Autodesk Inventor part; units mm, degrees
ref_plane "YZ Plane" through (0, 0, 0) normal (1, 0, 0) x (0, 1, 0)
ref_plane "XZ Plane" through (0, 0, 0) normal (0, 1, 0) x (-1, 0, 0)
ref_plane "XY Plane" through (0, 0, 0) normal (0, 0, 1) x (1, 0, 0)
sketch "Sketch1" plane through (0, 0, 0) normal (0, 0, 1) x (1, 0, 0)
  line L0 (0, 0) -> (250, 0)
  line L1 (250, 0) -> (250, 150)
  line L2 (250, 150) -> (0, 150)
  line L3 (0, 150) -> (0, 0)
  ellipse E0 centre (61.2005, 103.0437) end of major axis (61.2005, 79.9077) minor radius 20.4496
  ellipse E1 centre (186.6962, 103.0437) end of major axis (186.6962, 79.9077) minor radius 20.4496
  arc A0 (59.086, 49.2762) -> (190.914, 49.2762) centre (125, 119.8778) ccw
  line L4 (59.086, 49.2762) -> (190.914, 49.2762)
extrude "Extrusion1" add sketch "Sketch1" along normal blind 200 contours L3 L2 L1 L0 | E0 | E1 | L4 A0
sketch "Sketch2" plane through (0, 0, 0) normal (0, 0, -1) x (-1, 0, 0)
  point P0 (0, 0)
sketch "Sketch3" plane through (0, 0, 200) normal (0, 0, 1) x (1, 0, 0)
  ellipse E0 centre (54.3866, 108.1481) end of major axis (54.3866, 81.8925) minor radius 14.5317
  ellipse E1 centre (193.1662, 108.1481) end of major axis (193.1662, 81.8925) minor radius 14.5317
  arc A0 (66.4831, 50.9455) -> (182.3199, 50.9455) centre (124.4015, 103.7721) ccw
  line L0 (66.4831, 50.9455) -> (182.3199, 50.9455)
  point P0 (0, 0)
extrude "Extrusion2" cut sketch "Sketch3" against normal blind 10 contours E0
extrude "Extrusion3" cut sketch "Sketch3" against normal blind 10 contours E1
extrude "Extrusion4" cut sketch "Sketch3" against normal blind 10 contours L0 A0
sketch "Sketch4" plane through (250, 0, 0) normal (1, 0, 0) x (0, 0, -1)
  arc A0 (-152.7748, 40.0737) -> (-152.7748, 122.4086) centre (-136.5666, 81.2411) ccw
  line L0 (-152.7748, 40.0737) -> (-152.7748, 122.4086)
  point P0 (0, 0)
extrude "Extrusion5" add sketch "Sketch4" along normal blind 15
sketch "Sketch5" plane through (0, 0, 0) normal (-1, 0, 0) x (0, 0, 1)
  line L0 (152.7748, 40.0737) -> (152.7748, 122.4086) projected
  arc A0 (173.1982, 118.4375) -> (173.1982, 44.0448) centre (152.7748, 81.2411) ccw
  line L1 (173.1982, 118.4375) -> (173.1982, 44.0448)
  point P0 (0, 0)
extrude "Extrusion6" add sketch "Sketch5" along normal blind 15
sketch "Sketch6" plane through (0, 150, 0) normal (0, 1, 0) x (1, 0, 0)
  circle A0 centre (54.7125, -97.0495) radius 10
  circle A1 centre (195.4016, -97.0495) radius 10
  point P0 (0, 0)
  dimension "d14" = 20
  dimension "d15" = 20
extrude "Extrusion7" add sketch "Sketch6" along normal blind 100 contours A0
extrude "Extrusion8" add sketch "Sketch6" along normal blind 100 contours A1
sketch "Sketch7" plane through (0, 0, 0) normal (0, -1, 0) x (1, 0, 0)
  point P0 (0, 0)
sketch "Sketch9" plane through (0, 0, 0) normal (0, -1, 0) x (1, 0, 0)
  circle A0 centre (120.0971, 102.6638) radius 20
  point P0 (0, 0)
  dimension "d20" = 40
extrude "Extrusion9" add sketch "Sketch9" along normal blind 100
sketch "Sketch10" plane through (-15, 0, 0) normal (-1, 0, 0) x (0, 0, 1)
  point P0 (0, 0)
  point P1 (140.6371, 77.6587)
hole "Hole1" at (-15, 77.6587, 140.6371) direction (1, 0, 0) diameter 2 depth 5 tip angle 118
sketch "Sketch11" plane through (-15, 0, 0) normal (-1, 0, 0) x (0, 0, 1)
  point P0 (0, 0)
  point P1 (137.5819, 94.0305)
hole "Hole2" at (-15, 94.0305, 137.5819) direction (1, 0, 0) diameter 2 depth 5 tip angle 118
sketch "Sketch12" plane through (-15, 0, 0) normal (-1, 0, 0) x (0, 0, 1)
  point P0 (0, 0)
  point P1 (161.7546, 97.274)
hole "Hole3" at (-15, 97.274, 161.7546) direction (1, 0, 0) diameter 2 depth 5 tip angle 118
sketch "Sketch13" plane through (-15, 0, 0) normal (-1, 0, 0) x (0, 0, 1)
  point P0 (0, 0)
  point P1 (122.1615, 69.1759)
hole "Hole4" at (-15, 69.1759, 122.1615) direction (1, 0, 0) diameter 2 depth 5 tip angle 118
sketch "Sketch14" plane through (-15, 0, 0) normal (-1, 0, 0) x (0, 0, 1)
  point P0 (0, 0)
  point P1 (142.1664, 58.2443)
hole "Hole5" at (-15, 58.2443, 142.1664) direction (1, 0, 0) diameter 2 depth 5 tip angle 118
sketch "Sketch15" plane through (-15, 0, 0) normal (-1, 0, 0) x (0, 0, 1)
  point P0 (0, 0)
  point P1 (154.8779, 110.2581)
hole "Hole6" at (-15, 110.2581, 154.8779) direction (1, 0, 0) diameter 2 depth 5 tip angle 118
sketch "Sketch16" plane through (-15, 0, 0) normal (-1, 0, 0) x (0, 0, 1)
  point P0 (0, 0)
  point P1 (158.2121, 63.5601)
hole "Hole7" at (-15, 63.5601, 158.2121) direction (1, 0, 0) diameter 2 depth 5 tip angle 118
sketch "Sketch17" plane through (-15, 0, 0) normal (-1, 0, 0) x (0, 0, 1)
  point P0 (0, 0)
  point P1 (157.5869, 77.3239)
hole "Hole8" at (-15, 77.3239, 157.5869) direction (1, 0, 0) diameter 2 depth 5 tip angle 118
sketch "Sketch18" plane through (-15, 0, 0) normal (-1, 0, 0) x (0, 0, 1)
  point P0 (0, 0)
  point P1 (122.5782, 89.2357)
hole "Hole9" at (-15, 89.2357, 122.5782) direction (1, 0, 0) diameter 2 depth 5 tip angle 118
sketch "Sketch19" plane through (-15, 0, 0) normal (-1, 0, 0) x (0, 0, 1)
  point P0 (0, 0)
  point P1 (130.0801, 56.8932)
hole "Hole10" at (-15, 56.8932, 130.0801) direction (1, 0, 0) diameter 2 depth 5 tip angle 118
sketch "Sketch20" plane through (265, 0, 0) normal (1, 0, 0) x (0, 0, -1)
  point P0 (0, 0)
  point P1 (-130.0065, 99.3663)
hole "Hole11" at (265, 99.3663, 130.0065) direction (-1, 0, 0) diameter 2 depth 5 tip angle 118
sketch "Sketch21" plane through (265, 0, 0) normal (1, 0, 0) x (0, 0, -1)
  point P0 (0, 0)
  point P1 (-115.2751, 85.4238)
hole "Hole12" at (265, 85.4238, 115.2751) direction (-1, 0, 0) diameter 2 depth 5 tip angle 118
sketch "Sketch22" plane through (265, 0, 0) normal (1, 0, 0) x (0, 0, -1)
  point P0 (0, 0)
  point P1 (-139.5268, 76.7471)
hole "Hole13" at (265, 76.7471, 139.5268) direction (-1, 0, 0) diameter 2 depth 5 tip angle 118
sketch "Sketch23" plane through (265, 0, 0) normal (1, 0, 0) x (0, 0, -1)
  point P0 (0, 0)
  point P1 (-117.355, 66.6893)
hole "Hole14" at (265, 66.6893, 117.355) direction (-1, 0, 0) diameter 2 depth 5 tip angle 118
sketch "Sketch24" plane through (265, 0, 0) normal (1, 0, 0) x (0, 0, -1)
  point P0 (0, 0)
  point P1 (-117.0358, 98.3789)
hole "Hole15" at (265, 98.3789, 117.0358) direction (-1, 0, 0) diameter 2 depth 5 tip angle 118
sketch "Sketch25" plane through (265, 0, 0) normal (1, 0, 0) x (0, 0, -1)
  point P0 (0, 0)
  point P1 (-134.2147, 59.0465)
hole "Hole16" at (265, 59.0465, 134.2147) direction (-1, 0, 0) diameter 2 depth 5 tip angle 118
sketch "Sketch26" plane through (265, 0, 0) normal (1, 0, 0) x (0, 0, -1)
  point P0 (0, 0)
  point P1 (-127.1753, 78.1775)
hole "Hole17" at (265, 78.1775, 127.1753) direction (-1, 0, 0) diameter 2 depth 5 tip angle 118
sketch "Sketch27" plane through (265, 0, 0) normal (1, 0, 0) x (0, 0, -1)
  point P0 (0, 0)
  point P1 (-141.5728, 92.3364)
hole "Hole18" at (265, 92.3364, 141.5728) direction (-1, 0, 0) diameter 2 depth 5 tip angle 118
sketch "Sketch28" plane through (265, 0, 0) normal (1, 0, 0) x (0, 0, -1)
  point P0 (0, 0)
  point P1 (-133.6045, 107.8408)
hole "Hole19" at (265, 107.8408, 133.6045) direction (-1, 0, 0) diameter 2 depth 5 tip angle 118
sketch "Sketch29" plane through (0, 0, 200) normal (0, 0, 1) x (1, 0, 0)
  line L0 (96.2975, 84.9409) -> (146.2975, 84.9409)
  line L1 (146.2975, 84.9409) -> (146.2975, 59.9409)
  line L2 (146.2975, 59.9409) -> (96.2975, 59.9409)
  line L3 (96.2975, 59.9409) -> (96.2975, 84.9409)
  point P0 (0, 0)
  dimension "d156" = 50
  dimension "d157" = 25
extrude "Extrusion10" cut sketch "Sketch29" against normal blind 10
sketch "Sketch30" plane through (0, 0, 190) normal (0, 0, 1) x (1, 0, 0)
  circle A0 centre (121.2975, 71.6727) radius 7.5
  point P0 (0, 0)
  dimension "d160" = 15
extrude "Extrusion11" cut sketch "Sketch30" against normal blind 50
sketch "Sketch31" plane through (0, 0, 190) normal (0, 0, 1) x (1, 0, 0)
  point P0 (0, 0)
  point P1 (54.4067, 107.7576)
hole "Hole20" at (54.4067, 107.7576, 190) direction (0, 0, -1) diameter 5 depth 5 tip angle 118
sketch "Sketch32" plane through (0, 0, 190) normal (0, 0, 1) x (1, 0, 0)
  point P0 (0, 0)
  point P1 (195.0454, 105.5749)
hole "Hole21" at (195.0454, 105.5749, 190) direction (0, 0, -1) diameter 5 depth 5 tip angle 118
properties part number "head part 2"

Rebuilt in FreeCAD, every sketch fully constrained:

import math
import FreeCAD as App
import Part
import Sketcher
Q = App.Units.Quantity

doc = App.newDocument("Part")
body = doc.addObject("PartDesign::Body", "Body")

# Sketch on XY plane
sketch1 = body.newObject("Sketcher::SketchObject", "Sketch")
sketch1.AttachmentSupport = (doc.getObject("XY_Plane"), [""])
sketch1.MapMode = "FlatFace"
sketch1.addGeometry([
    Part.LineSegment(App.Vector(0, 150, 0), App.Vector(0, 0, 0)),
    Part.LineSegment(App.Vector(0, 0, 0), App.Vector(250, 0, 0)),
    Part.LineSegment(App.Vector(250, 0, 0), App.Vector(250, 150, 0)),
    Part.LineSegment(App.Vector(250, 150, 0), App.Vector(0, 150, 0)),
], False)
sketch1.addConstraint([
    Sketcher.Constraint("Coincident", 0, 2, 1, 1),
    Sketcher.Constraint("Coincident", 1, 2, 2, 1),
    Sketcher.Constraint("Coincident", 2, 2, 3, 1),
    Sketcher.Constraint("Coincident", 3, 2, 0, 1),
    Sketcher.Constraint("Vertical", 0),
    Sketcher.Constraint("Horizontal", 1),
    Sketcher.Constraint("Vertical", 2),
    Sketcher.Constraint("Horizontal", 3),
    Sketcher.Constraint("Coincident", 0, 2, -1, 1),
    Sketcher.Constraint("DistanceX", 1, 1, 1, 2, Q("250 mm")),
    Sketcher.Constraint("DistanceY", 0, 2, 0, 1, Q("150 mm")),
])
pad1 = body.newObject("PartDesign::Pad", "Pad")
pad1.Profile = sketch1
pad1.Length = 200

# Sketch on XY plane
sketch2 = body.newObject("Sketcher::SketchObject", "Sketch001")
sketch2.AttachmentSupport = (doc.getObject("XY_Plane"), [""])
sketch2.MapMode = "FlatFace"
sketch2.AttachmentOffset = App.Placement(App.Vector(0, 0, 200), App.Rotation())
sketch2.addGeometry(Part.Ellipse(App.Vector(54.3866, 81.8925, 0), App.Vector(68.9183, 108.1481, 0), App.Vector(54.3866, 108.1481, 0)), False)
sketch2.addConstraint(Sketcher.Constraint("Block", 0))
pocket1 = body.newObject("PartDesign::Pocket", "Pocket")
pocket1.Profile = sketch2
pocket1.Length = 10

# Sketch on XY plane
sketch3 = body.newObject("Sketcher::SketchObject", "Sketch002")
sketch3.AttachmentSupport = (doc.getObject("XY_Plane"), [""])
sketch3.MapMode = "FlatFace"
sketch3.AttachmentOffset = App.Placement(App.Vector(0, 0, 200), App.Rotation())
sketch3.addGeometry(Part.Ellipse(App.Vector(193.1662, 81.8925, 0), App.Vector(207.6979, 108.1481, 0), App.Vector(193.1662, 108.1481, 0)), False)
sketch3.addConstraint(Sketcher.Constraint("Block", 0))
pocket2 = body.newObject("PartDesign::Pocket", "Pocket001")
pocket2.Profile = sketch3
pocket2.Length = 10

# Sketch on XY plane
sketch4 = body.newObject("Sketcher::SketchObject", "Sketch003")
sketch4.AttachmentSupport = (doc.getObject("XY_Plane"), [""])
sketch4.MapMode = "FlatFace"
sketch4.AttachmentOffset = App.Placement(App.Vector(0, 0, 200), App.Rotation())
sketch4.addGeometry([
    Part.LineSegment(App.Vector(182, 51, 0), App.Vector(66, 51, 0)),
    Part.ArcOfCircle(Part.Circle(App.Vector(124, 104, 0), App.Vector(0, 0, 1), 78), math.radians(-138), math.radians(-42)),
], False)
sketch4.addConstraint([
    Sketcher.Constraint("Coincident", 0, 1, 1, 2),
    Sketcher.Constraint("Coincident", 1, 1, 0, 2),
    Sketcher.Constraint("Horizontal", 0),
    Sketcher.Constraint("Radius", 1, Q("78.3913 mm")),
    Sketcher.Constraint("DistanceX", -1, 1, 0, 1, Q("182.32 mm")),
    Sketcher.Constraint("DistanceX", 0, 2, 0, 1, Q("115.8368 mm")),
    Sketcher.Constraint("DistanceY", -1, 1, 1, 3, Q("103.772 mm")),
])
pocket3 = body.newObject("PartDesign::Pocket", "Pocket002")
pocket3.Profile = sketch4
pocket3.Length = 10

# Sketch on YZ plane
sketch5 = body.newObject("Sketcher::SketchObject", "Sketch004")
sketch5.AttachmentSupport = (doc.getObject("YZ_Plane"), [""])
sketch5.MapMode = "FlatFace"
sketch5.AttachmentOffset = App.Placement(App.Vector(0, 0, 250), App.Rotation())
sketch5.addGeometry([
    Part.LineSegment(App.Vector(122, 153, 0), App.Vector(40, 153, 0)),
    Part.ArcOfCircle(Part.Circle(App.Vector(81, 137, 0), App.Vector(0, 0, 1), 44), math.radians(159), math.radians(381)),
], False)
sketch5.addConstraint([
    Sketcher.Constraint("Coincident", 0, 1, 1, 2),
    Sketcher.Constraint("Coincident", 1, 1, 0, 2),
    Sketcher.Constraint("Horizontal", 0),
    Sketcher.Constraint("Radius", 1, Q("44.2432 mm")),
    Sketcher.Constraint("DistanceX", 0, 2, 0, 1, Q("82.335 mm")),
    Sketcher.Constraint("DistanceX", -1, 1, 1, 3, Q("81.241 mm")),
    Sketcher.Constraint("DistanceY", -1, 1, 1, 3, Q("136.5666 mm")),
])
pad2 = body.newObject("PartDesign::Pad", "Pad001")
pad2.Profile = sketch5
pad2.Length = 15

# Sketch on YZ plane
sketch6 = body.newObject("Sketcher::SketchObject", "Sketch005")
sketch6.AttachmentSupport = (doc.getObject("YZ_Plane"), [""])
sketch6.MapMode = "FlatFace"
sketch6.addGeometry([
    Part.LineSegment(App.Vector(44, 173, 0), App.Vector(118, 173, 0)),
    Part.ArcOfCircle(Part.Circle(App.Vector(81, 153, 0), App.Vector(0, 0, 1), 42), math.radians(151), math.radians(389)),
], False)
sketch6.addConstraint([
    Sketcher.Constraint("Coincident", 0, 1, 1, 1),
    Sketcher.Constraint("Coincident", 1, 2, 0, 2),
    Sketcher.Constraint("Horizontal", 0),
    Sketcher.Constraint("Radius", 1, Q("42.4345 mm")),
    Sketcher.Constraint("DistanceX", 0, 1, 0, 2, Q("74.3927 mm")),
    Sketcher.Constraint("DistanceX", -1, 1, 1, 3, Q("81.241 mm")),
    Sketcher.Constraint("DistanceY", -1, 1, 1, 3, Q("152.7748 mm")),
])
pad3 = body.newObject("PartDesign::Pad", "Pad002")
pad3.Profile = sketch6
pad3.Length = 15
pad3.Reversed = True

# Sketch on XZ plane
sketch7 = body.newObject("Sketcher::SketchObject", "Sketch006")
sketch7.AttachmentSupport = (doc.getObject("XZ_Plane"), [""])
sketch7.MapMode = "FlatFace"
sketch7.AttachmentOffset = App.Placement(App.Vector(0, 0, -150), App.Rotation())
sketch7.addGeometry(Part.Circle(App.Vector(55, 97, 0), App.Vector(0, 0, 1), 10), False)
sketch7.addConstraint([
    Sketcher.Constraint("Diameter", 0, Q("20 mm")),
    Sketcher.Constraint("DistanceX", -1, 1, 0, 3, Q("54.7125 mm")),
    Sketcher.Constraint("DistanceY", -1, 1, 0, 3, Q("97.0495 mm")),
])
pad4 = body.newObject("PartDesign::Pad", "Pad003")
pad4.Profile = sketch7
pad4.Length = 100
pad4.Reversed = True

# Sketch on XZ plane
sketch8 = body.newObject("Sketcher::SketchObject", "Sketch007")
sketch8.AttachmentSupport = (doc.getObject("XZ_Plane"), [""])
sketch8.MapMode = "FlatFace"
sketch8.AttachmentOffset = App.Placement(App.Vector(0, 0, -150), App.Rotation())
sketch8.addGeometry(Part.Circle(App.Vector(195, 97, 0), App.Vector(0, 0, 1), 10), False)
sketch8.addConstraint([
    Sketcher.Constraint("Diameter", 0, Q("20 mm")),
    Sketcher.Constraint("DistanceX", -1, 1, 0, 3, Q("195.4016 mm")),
    Sketcher.Constraint("DistanceY", -1, 1, 0, 3, Q("97.0495 mm")),
])
pad5 = body.newObject("PartDesign::Pad", "Pad004")
pad5.Profile = sketch8
pad5.Length = 100
pad5.Reversed = True

# Sketch on XZ plane
sketch9 = body.newObject("Sketcher::SketchObject", "Sketch008")
sketch9.AttachmentSupport = (doc.getObject("XZ_Plane"), [""])
sketch9.MapMode = "FlatFace"
sketch9.addGeometry(Part.Circle(App.Vector(120, 103, 0), App.Vector(0, 0, 1), 20), False)
sketch9.addConstraint([
    Sketcher.Constraint("Diameter", 0, Q("40 mm")),
    Sketcher.Constraint("DistanceX", -1, 1, 0, 3, Q("120.097 mm")),
    Sketcher.Constraint("DistanceY", -1, 1, 0, 3, Q("102.6638 mm")),
])
pad6 = body.newObject("PartDesign::Pad", "Pad005")
pad6.Profile = sketch9
pad6.Length = 100

# Sketch on YZ plane
sketch10 = body.newObject("Sketcher::SketchObject", "Sketch009")
sketch10.AttachmentSupport = (doc.getObject("YZ_Plane"), [""])
sketch10.MapMode = "FlatFace"
sketch10.AttachmentOffset = App.Placement(App.Vector(0, 0, -15), App.Rotation())
sketch10.addGeometry(Part.Circle(App.Vector(77.7, 140.6, 0), App.Vector(0, 0, 1), 1), False)
sketch10.addConstraint([
    Sketcher.Constraint("Diameter", 0, Q("2 mm")),
    Sketcher.Constraint("DistanceY", -1, 1, 0, 3, Q("140.637 mm")),
    Sketcher.Constraint("DistanceX", -1, 1, 0, 3, Q("77.6587 mm")),
])
doc.recompute()
hole = body.newObject("PartDesign::Hole", "Hole")
hole.Profile = sketch10
hole.ThreadType = "None"
hole.Diameter = 2
hole.DepthType = "Dimension"
hole.Depth = 5
hole.DrillPoint = "Angled"
hole.DrillPointAngle = 118
hole.Reversed = True

# Sketch on YZ plane
sketch11 = body.newObject("Sketcher::SketchObject", "Sketch010")
sketch11.AttachmentSupport = (doc.getObject("YZ_Plane"), [""])
sketch11.MapMode = "FlatFace"
sketch11.AttachmentOffset = App.Placement(App.Vector(0, 0, -15), App.Rotation())
sketch11.addGeometry(Part.Circle(App.Vector(94, 137.6, 0), App.Vector(0, 0, 1), 1), False)
sketch11.addConstraint([
    Sketcher.Constraint("Diameter", 0, Q("2 mm")),
    Sketcher.Constraint("DistanceY", -1, 1, 0, 3, Q("137.582 mm")),
    Sketcher.Constraint("DistanceX", -1, 1, 0, 3, Q("94.0305 mm")),
])
doc.recompute()
hole2 = body.newObject("PartDesign::Hole", "Hole001")
hole2.Profile = sketch11
hole2.ThreadType = "None"
hole2.Diameter = 2
hole2.DepthType = "Dimension"
hole2.Depth = 5
hole2.DrillPoint = "Angled"
hole2.DrillPointAngle = 118
hole2.Reversed = True

# Sketch on YZ plane
sketch12 = body.newObject("Sketcher::SketchObject", "Sketch011")
sketch12.AttachmentSupport = (doc.getObject("YZ_Plane"), [""])
sketch12.MapMode = "FlatFace"
sketch12.AttachmentOffset = App.Placement(App.Vector(0, 0, -15), App.Rotation())
sketch12.addGeometry(Part.Circle(App.Vector(97.3, 161.8, 0), App.Vector(0, 0, 1), 1), False)
sketch12.addConstraint([
    Sketcher.Constraint("Diameter", 0, Q("2 mm")),
    Sketcher.Constraint("DistanceX", -1, 1, 0, 3, Q("97.274 mm")),
    Sketcher.Constraint("DistanceY", -1, 1, 0, 3, Q("161.7546 mm")),
])
doc.recompute()
hole3 = body.newObject("PartDesign::Hole", "Hole002")
hole3.Profile = sketch12
hole3.ThreadType = "None"
hole3.Diameter = 2
hole3.DepthType = "Dimension"
hole3.Depth = 5
hole3.DrillPoint = "Angled"
hole3.DrillPointAngle = 118
hole3.Reversed = True

# Sketch on YZ plane
sketch13 = body.newObject("Sketcher::SketchObject", "Sketch012")
sketch13.AttachmentSupport = (doc.getObject("YZ_Plane"), [""])
sketch13.MapMode = "FlatFace"
sketch13.AttachmentOffset = App.Placement(App.Vector(0, 0, -15), App.Rotation())
sketch13.addGeometry(Part.Circle(App.Vector(69.2, 122.2, 0), App.Vector(0, 0, 1), 1), False)
sketch13.addConstraint([
    Sketcher.Constraint("Diameter", 0, Q("2 mm")),
    Sketcher.Constraint("DistanceX", -1, 1, 0, 3, Q("69.176 mm")),
    Sketcher.Constraint("DistanceY", -1, 1, 0, 3, Q("122.1615 mm")),
])
doc.recompute()
hole4 = body.newObject("PartDesign::Hole", "Hole003")
hole4.Profile = sketch13
hole4.ThreadType = "None"
hole4.Diameter = 2
hole4.DepthType = "Dimension"
hole4.Depth = 5
hole4.DrillPoint = "Angled"
hole4.DrillPointAngle = 118
hole4.Reversed = True

# Sketch on YZ plane
sketch14 = body.newObject("Sketcher::SketchObject", "Sketch013")
sketch14.AttachmentSupport = (doc.getObject("YZ_Plane"), [""])
sketch14.MapMode = "FlatFace"
sketch14.AttachmentOffset = App.Placement(App.Vector(0, 0, -15), App.Rotation())
sketch14.addGeometry(Part.Circle(App.Vector(58.2, 142.2, 0), App.Vector(0, 0, 1), 1), False)
sketch14.addConstraint([
    Sketcher.Constraint("Diameter", 0, Q("2 mm")),
    Sketcher.Constraint("DistanceX", -1, 1, 0, 3, Q("58.2443 mm")),
    Sketcher.Constraint("DistanceY", -1, 1, 0, 3, Q("142.1664 mm")),
])
doc.recompute()
hole5 = body.newObject("PartDesign::Hole", "Hole004")
hole5.Profile = sketch14
hole5.ThreadType = "None"
hole5.Diameter = 2
hole5.DepthType = "Dimension"
hole5.Depth = 5
hole5.DrillPoint = "Angled"
hole5.DrillPointAngle = 118
hole5.Reversed = True

# Sketch on YZ plane
sketch15 = body.newObject("Sketcher::SketchObject", "Sketch014")
sketch15.AttachmentSupport = (doc.getObject("YZ_Plane"), [""])
sketch15.MapMode = "FlatFace"
sketch15.AttachmentOffset = App.Placement(App.Vector(0, 0, -15), App.Rotation())
sketch15.addGeometry(Part.Circle(App.Vector(110.3, 154.9, 0), App.Vector(0, 0, 1), 1), False)
sketch15.addConstraint([
    Sketcher.Constraint("Diameter", 0, Q("2 mm")),
    Sketcher.Constraint("DistanceX", -1, 1, 0, 3, Q("110.258 mm")),
    Sketcher.Constraint("DistanceY", -1, 1, 0, 3, Q("154.878 mm")),
])
doc.recompute()
hole6 = body.newObject("PartDesign::Hole", "Hole005")
hole6.Profile = sketch15
hole6.ThreadType = "None"
hole6.Diameter = 2
hole6.DepthType = "Dimension"
hole6.Depth = 5
hole6.DrillPoint = "Angled"
hole6.DrillPointAngle = 118
hole6.Reversed = True

# Sketch on YZ plane
sketch16 = body.newObject("Sketcher::SketchObject", "Sketch015")
sketch16.AttachmentSupport = (doc.getObject("YZ_Plane"), [""])
sketch16.MapMode = "FlatFace"
sketch16.AttachmentOffset = App.Placement(App.Vector(0, 0, -15), App.Rotation())
sketch16.addGeometry(Part.Circle(App.Vector(63.6, 158.2, 0), App.Vector(0, 0, 1), 1), False)
sketch16.addConstraint([
    Sketcher.Constraint("Diameter", 0, Q("2 mm")),
    Sketcher.Constraint("DistanceX", -1, 1, 0, 3, Q("63.56 mm")),
    Sketcher.Constraint("DistanceY", -1, 1, 0, 3, Q("158.212 mm")),
])
doc.recompute()
hole7 = body.newObject("PartDesign::Hole", "Hole006")
hole7.Profile = sketch16
hole7.ThreadType = "None"
hole7.Diameter = 2
hole7.DepthType = "Dimension"
hole7.Depth = 5
hole7.DrillPoint = "Angled"
hole7.DrillPointAngle = 118
hole7.Reversed = True

# Sketch on YZ plane
sketch17 = body.newObject("Sketcher::SketchObject", "Sketch016")
sketch17.AttachmentSupport = (doc.getObject("YZ_Plane"), [""])
sketch17.MapMode = "FlatFace"
sketch17.AttachmentOffset = App.Placement(App.Vector(0, 0, -15), App.Rotation())
sketch17.addGeometry(Part.Circle(App.Vector(77.3, 157.6, 0), App.Vector(0, 0, 1), 1), False)
sketch17.addConstraint([
    Sketcher.Constraint("Diameter", 0, Q("2 mm")),
    Sketcher.Constraint("DistanceX", -1, 1, 0, 3, Q("77.324 mm")),
    Sketcher.Constraint("DistanceY", -1, 1, 0, 3, Q("157.587 mm")),
])
doc.recompute()
hole8 = body.newObject("PartDesign::Hole", "Hole007")
hole8.Profile = sketch17
hole8.ThreadType = "None"
hole8.Diameter = 2
hole8.DepthType = "Dimension"
hole8.Depth = 5
hole8.DrillPoint = "Angled"
hole8.DrillPointAngle = 118
hole8.Reversed = True

# Sketch on YZ plane
sketch18 = body.newObject("Sketcher::SketchObject", "Sketch017")
sketch18.AttachmentSupport = (doc.getObject("YZ_Plane"), [""])
sketch18.MapMode = "FlatFace"
sketch18.AttachmentOffset = App.Placement(App.Vector(0, 0, -15), App.Rotation())
sketch18.addGeometry(Part.Circle(App.Vector(89.2, 122.6, 0), App.Vector(0, 0, 1), 1), False)
sketch18.addConstraint([
    Sketcher.Constraint("Diameter", 0, Q("2 mm")),
    Sketcher.Constraint("DistanceX", -1, 1, 0, 3, Q("89.2357 mm")),
    Sketcher.Constraint("DistanceY", -1, 1, 0, 3, Q("122.5782 mm")),
])
doc.recompute()
hole9 = body.newObject("PartDesign::Hole", "Hole008")
hole9.Profile = sketch18
hole9.ThreadType = "None"
hole9.Diameter = 2
hole9.DepthType = "Dimension"
hole9.Depth = 5
hole9.DrillPoint = "Angled"
hole9.DrillPointAngle = 118
hole9.Reversed = True

# Sketch on YZ plane
sketch19 = body.newObject("Sketcher::SketchObject", "Sketch018")
sketch19.AttachmentSupport = (doc.getObject("YZ_Plane"), [""])
sketch19.MapMode = "FlatFace"
sketch19.AttachmentOffset = App.Placement(App.Vector(0, 0, -15), App.Rotation())
sketch19.addGeometry(Part.Circle(App.Vector(56.9, 130.1, 0), App.Vector(0, 0, 1), 1), False)
sketch19.addConstraint([
    Sketcher.Constraint("Diameter", 0, Q("2 mm")),
    Sketcher.Constraint("DistanceY", -1, 1, 0, 3, Q("130.08 mm")),
    Sketcher.Constraint("DistanceX", -1, 1, 0, 3, Q("56.8932 mm")),
])
doc.recompute()
hole10 = body.newObject("PartDesign::Hole", "Hole009")
hole10.Profile = sketch19
hole10.ThreadType = "None"
hole10.Diameter = 2
hole10.DepthType = "Dimension"
hole10.Depth = 5
hole10.DrillPoint = "Angled"
hole10.DrillPointAngle = 118
hole10.Reversed = True

# Sketch on YZ plane
sketch20 = body.newObject("Sketcher::SketchObject", "Sketch019")
sketch20.AttachmentSupport = (doc.getObject("YZ_Plane"), [""])
sketch20.MapMode = "FlatFace"
sketch20.AttachmentOffset = App.Placement(App.Vector(0, 0, 265), App.Rotation())
sketch20.addGeometry(Part.Circle(App.Vector(99.4, 130, 0), App.Vector(0, 0, 1), 1), False)
sketch20.addConstraint([
    Sketcher.Constraint("Diameter", 0, Q("2 mm")),
    Sketcher.Constraint("DistanceX", -1, 1, 0, 3, Q("99.3663 mm")),
    Sketcher.Constraint("DistanceY", -1, 1, 0, 3, Q("130.0065 mm")),
])
doc.recompute()
hole11 = body.newObject("PartDesign::Hole", "Hole010")
hole11.Profile = sketch20
hole11.ThreadType = "None"
hole11.Diameter = 2
hole11.DepthType = "Dimension"
hole11.Depth = 5
hole11.DrillPoint = "Angled"
hole11.DrillPointAngle = 118

# Sketch on YZ plane
sketch21 = body.newObject("Sketcher::SketchObject", "Sketch020")
sketch21.AttachmentSupport = (doc.getObject("YZ_Plane"), [""])
sketch21.MapMode = "FlatFace"
sketch21.AttachmentOffset = App.Placement(App.Vector(0, 0, 265), App.Rotation())
sketch21.addGeometry(Part.Circle(App.Vector(85.4, 115.3, 0), App.Vector(0, 0, 1), 1), False)
sketch21.addConstraint([
    Sketcher.Constraint("Diameter", 0, Q("2 mm")),
    Sketcher.Constraint("DistanceY", -1, 1, 0, 3, Q("115.275 mm")),
    Sketcher.Constraint("DistanceX", -1, 1, 0, 3, Q("85.4238 mm")),
])
doc.recompute()
hole12 = body.newObject("PartDesign::Hole", "Hole011")
hole12.Profile = sketch21
hole12.ThreadType = "None"
hole12.Diameter = 2
hole12.DepthType = "Dimension"
hole12.Depth = 5
hole12.DrillPoint = "Angled"
hole12.DrillPointAngle = 118

# Sketch on YZ plane
sketch22 = body.newObject("Sketcher::SketchObject", "Sketch021")
sketch22.AttachmentSupport = (doc.getObject("YZ_Plane"), [""])
sketch22.MapMode = "FlatFace"
sketch22.AttachmentOffset = App.Placement(App.Vector(0, 0, 265), App.Rotation())
sketch22.addGeometry(Part.Circle(App.Vector(76.7, 139.5, 0), App.Vector(0, 0, 1), 1), False)
sketch22.addConstraint([
    Sketcher.Constraint("Diameter", 0, Q("2 mm")),
    Sketcher.Constraint("DistanceX", -1, 1, 0, 3, Q("76.747 mm")),
    Sketcher.Constraint("DistanceY", -1, 1, 0, 3, Q("139.5268 mm")),
])
doc.recompute()
hole13 = body.newObject("PartDesign::Hole", "Hole012")
hole13.Profile = sketch22
hole13.ThreadType = "None"
hole13.Diameter = 2
hole13.DepthType = "Dimension"
hole13.Depth = 5
hole13.DrillPoint = "Angled"
hole13.DrillPointAngle = 118

# Sketch on YZ plane
sketch23 = body.newObject("Sketcher::SketchObject", "Sketch022")
sketch23.AttachmentSupport = (doc.getObject("YZ_Plane"), [""])
sketch23.MapMode = "FlatFace"
sketch23.AttachmentOffset = App.Placement(App.Vector(0, 0, 265), App.Rotation())
sketch23.addGeometry(Part.Circle(App.Vector(66.7, 117.4, 0), App.Vector(0, 0, 1), 1), False)
sketch23.addConstraint([
    Sketcher.Constraint("Diameter", 0, Q("2 mm")),
    Sketcher.Constraint("DistanceY", -1, 1, 0, 3, Q("117.355 mm")),
    Sketcher.Constraint("DistanceX", -1, 1, 0, 3, Q("66.6893 mm")),
])
doc.recompute()
hole14 = body.newObject("PartDesign::Hole", "Hole013")
hole14.Profile = sketch23
hole14.ThreadType = "None"
hole14.Diameter = 2
hole14.DepthType = "Dimension"
hole14.Depth = 5
hole14.DrillPoint = "Angled"
hole14.DrillPointAngle = 118

# Sketch on YZ plane
sketch24 = body.newObject("Sketcher::SketchObject", "Sketch023")
sketch24.AttachmentSupport = (doc.getObject("YZ_Plane"), [""])
sketch24.MapMode = "FlatFace"
sketch24.AttachmentOffset = App.Placement(App.Vector(0, 0, 265), App.Rotation())
sketch24.addGeometry(Part.Circle(App.Vector(98.4, 117, 0), App.Vector(0, 0, 1), 1), False)
sketch24.addConstraint([
    Sketcher.Constraint("Diameter", 0, Q("2 mm")),
    Sketcher.Constraint("DistanceX", -1, 1, 0, 3, Q("98.379 mm")),
    Sketcher.Constraint("DistanceY", -1, 1, 0, 3, Q("117.0358 mm")),
])
doc.recompute()
hole15 = body.newObject("PartDesign::Hole", "Hole014")
hole15.Profile = sketch24
hole15.ThreadType = "None"
hole15.Diameter = 2
hole15.DepthType = "Dimension"
hole15.Depth = 5
hole15.DrillPoint = "Angled"
hole15.DrillPointAngle = 118

# Sketch on YZ plane
sketch25 = body.newObject("Sketcher::SketchObject", "Sketch024")
sketch25.AttachmentSupport = (doc.getObject("YZ_Plane"), [""])
sketch25.MapMode = "FlatFace"
sketch25.AttachmentOffset = App.Placement(App.Vector(0, 0, 265), App.Rotation())
sketch25.addGeometry(Part.Circle(App.Vector(59, 134.2, 0), App.Vector(0, 0, 1), 1), False)
sketch25.addConstraint([
    Sketcher.Constraint("Diameter", 0, Q("2 mm")),
    Sketcher.Constraint("DistanceX", -1, 1, 0, 3, Q("59.0465 mm")),
    Sketcher.Constraint("DistanceY", -1, 1, 0, 3, Q("134.2147 mm")),
])
doc.recompute()
hole16 = body.newObject("PartDesign::Hole", "Hole015")
hole16.Profile = sketch25
hole16.ThreadType = "None"
hole16.Diameter = 2
hole16.DepthType = "Dimension"
hole16.Depth = 5
hole16.DrillPoint = "Angled"
hole16.DrillPointAngle = 118

# Sketch on YZ plane
sketch26 = body.newObject("Sketcher::SketchObject", "Sketch025")
sketch26.AttachmentSupport = (doc.getObject("YZ_Plane"), [""])
sketch26.MapMode = "FlatFace"
sketch26.AttachmentOffset = App.Placement(App.Vector(0, 0, 265), App.Rotation())
sketch26.addGeometry(Part.Circle(App.Vector(78.2, 127.2, 0), App.Vector(0, 0, 1), 1), False)
sketch26.addConstraint([
    Sketcher.Constraint("Diameter", 0, Q("2 mm")),
    Sketcher.Constraint("DistanceX", -1, 1, 0, 3, Q("78.1775 mm")),
    Sketcher.Constraint("DistanceY", -1, 1, 0, 3, Q("127.1753 mm")),
])
doc.recompute()
hole17 = body.newObject("PartDesign::Hole", "Hole016")
hole17.Profile = sketch26
hole17.ThreadType = "None"
hole17.Diameter = 2
hole17.DepthType = "Dimension"
hole17.Depth = 5
hole17.DrillPoint = "Angled"
hole17.DrillPointAngle = 118

# Sketch on YZ plane
sketch27 = body.newObject("Sketcher::SketchObject", "Sketch026")
sketch27.AttachmentSupport = (doc.getObject("YZ_Plane"), [""])
sketch27.MapMode = "FlatFace"
sketch27.AttachmentOffset = App.Placement(App.Vector(0, 0, 265), App.Rotation())
sketch27.addGeometry(Part.Circle(App.Vector(92.3, 141.6, 0), App.Vector(0, 0, 1), 1), False)
sketch27.addConstraint([
    Sketcher.Constraint("Diameter", 0, Q("2 mm")),
    Sketcher.Constraint("DistanceX", -1, 1, 0, 3, Q("92.3364 mm")),
    Sketcher.Constraint("DistanceY", -1, 1, 0, 3, Q("141.5728 mm")),
])
doc.recompute()
hole18 = body.newObject("PartDesign::Hole", "Hole017")
hole18.Profile = sketch27
hole18.ThreadType = "None"
hole18.Diameter = 2
hole18.DepthType = "Dimension"
hole18.Depth = 5
hole18.DrillPoint = "Angled"
hole18.DrillPointAngle = 118

# Sketch on YZ plane
sketch28 = body.newObject("Sketcher::SketchObject", "Sketch027")
sketch28.AttachmentSupport = (doc.getObject("YZ_Plane"), [""])
sketch28.MapMode = "FlatFace"
sketch28.AttachmentOffset = App.Placement(App.Vector(0, 0, 265), App.Rotation())
sketch28.addGeometry(Part.Circle(App.Vector(107.8, 133.6, 0), App.Vector(0, 0, 1), 1), False)
sketch28.addConstraint([
    Sketcher.Constraint("Diameter", 0, Q("2 mm")),
    Sketcher.Constraint("DistanceX", -1, 1, 0, 3, Q("107.8408 mm")),
    Sketcher.Constraint("DistanceY", -1, 1, 0, 3, Q("133.6045 mm")),
])
doc.recompute()
hole19 = body.newObject("PartDesign::Hole", "Hole018")
hole19.Profile = sketch28
hole19.ThreadType = "None"
hole19.Diameter = 2
hole19.DepthType = "Dimension"
hole19.Depth = 5
hole19.DrillPoint = "Angled"
hole19.DrillPointAngle = 118

# Sketch on XY plane
sketch29 = body.newObject("Sketcher::SketchObject", "Sketch028")
sketch29.AttachmentSupport = (doc.getObject("XY_Plane"), [""])
sketch29.MapMode = "FlatFace"
sketch29.AttachmentOffset = App.Placement(App.Vector(0, 0, 200), App.Rotation())
sketch29.addGeometry([
    Part.LineSegment(App.Vector(146, 85, 0), App.Vector(96, 85, 0)),
    Part.LineSegment(App.Vector(96, 85, 0), App.Vector(96, 60, 0)),
    Part.LineSegment(App.Vector(96, 60, 0), App.Vector(146, 60, 0)),
    Part.LineSegment(App.Vector(146, 60, 0), App.Vector(146, 85, 0)),
], False)
sketch29.addConstraint([
    Sketcher.Constraint("Coincident", 0, 2, 1, 1),
    Sketcher.Constraint("Coincident", 1, 2, 2, 1),
    Sketcher.Constraint("Coincident", 2, 2, 3, 1),
    Sketcher.Constraint("Coincident", 3, 2, 0, 1),
    Sketcher.Constraint("Horizontal", 0),
    Sketcher.Constraint("Vertical", 1),
    Sketcher.Constraint("Horizontal", 2),
    Sketcher.Constraint("Vertical", 3),
    Sketcher.Constraint("DistanceX", 0, 2, 0, 1, Q("50 mm")),
    Sketcher.Constraint("DistanceY", 1, 2, 1, 1, Q("25 mm")),
    Sketcher.Constraint("DistanceY", -1, 1, 0, 2, Q("84.941 mm")),
    Sketcher.Constraint("DistanceX", -1, 1, 0, 2, Q("96.2975 mm")),
])
pocket4 = body.newObject("PartDesign::Pocket", "Pocket003")
pocket4.Profile = sketch29
pocket4.Length = 10

# Sketch on XY plane
sketch30 = body.newObject("Sketcher::SketchObject", "Sketch029")
sketch30.AttachmentSupport = (doc.getObject("XY_Plane"), [""])
sketch30.MapMode = "FlatFace"
sketch30.AttachmentOffset = App.Placement(App.Vector(0, 0, 190), App.Rotation())
sketch30.addGeometry(Part.Circle(App.Vector(121, 72, 0), App.Vector(0, 0, 1), 8), False)
sketch30.addConstraint([
    Sketcher.Constraint("Diameter", 0, Q("15 mm")),
    Sketcher.Constraint("DistanceX", -1, 1, 0, 3, Q("121.2975 mm")),
    Sketcher.Constraint("DistanceY", -1, 1, 0, 3, Q("71.6727 mm")),
])
pocket5 = body.newObject("PartDesign::Pocket", "Pocket004")
pocket5.Profile = sketch30
pocket5.Length = 50

# Sketch on XY plane
sketch31 = body.newObject("Sketcher::SketchObject", "Sketch030")
sketch31.AttachmentSupport = (doc.getObject("XY_Plane"), [""])
sketch31.MapMode = "FlatFace"
sketch31.AttachmentOffset = App.Placement(App.Vector(0, 0, 190), App.Rotation())
sketch31.addGeometry(Part.Circle(App.Vector(54.4, 107.8, 0), App.Vector(0, 0, 1), 2.5), False)
sketch31.addConstraint([
    Sketcher.Constraint("Diameter", 0, Q("5 mm")),
    Sketcher.Constraint("DistanceX", -1, 1, 0, 3, Q("54.4067 mm")),
    Sketcher.Constraint("DistanceY", -1, 1, 0, 3, Q("107.7576 mm")),
])
doc.recompute()
hole20 = body.newObject("PartDesign::Hole", "Hole019")
hole20.Profile = sketch31
hole20.ThreadType = "None"
hole20.Diameter = 5
hole20.DepthType = "Dimension"
hole20.Depth = 5
hole20.DrillPoint = "Angled"
hole20.DrillPointAngle = 118

# Sketch on XY plane
sketch32 = body.newObject("Sketcher::SketchObject", "Sketch031")
sketch32.AttachmentSupport = (doc.getObject("XY_Plane"), [""])
sketch32.MapMode = "FlatFace"
sketch32.AttachmentOffset = App.Placement(App.Vector(0, 0, 190), App.Rotation())
sketch32.addGeometry(Part.Circle(App.Vector(195, 105.6, 0), App.Vector(0, 0, 1), 2.5), False)
sketch32.addConstraint([
    Sketcher.Constraint("Diameter", 0, Q("5 mm")),
    Sketcher.Constraint("DistanceY", -1, 1, 0, 3, Q("105.575 mm")),
    Sketcher.Constraint("DistanceX", -1, 1, 0, 3, Q("195.0454 mm")),
])
doc.recompute()
hole21 = body.newObject("PartDesign::Hole", "Hole020")
hole21.Profile = sketch32
hole21.ThreadType = "None"
hole21.Diameter = 5
hole21.DepthType = "Dimension"
hole21.Depth = 5
hole21.DrillPoint = "Angled"
hole21.DrillPointAngle = 118

doc.recompute()
